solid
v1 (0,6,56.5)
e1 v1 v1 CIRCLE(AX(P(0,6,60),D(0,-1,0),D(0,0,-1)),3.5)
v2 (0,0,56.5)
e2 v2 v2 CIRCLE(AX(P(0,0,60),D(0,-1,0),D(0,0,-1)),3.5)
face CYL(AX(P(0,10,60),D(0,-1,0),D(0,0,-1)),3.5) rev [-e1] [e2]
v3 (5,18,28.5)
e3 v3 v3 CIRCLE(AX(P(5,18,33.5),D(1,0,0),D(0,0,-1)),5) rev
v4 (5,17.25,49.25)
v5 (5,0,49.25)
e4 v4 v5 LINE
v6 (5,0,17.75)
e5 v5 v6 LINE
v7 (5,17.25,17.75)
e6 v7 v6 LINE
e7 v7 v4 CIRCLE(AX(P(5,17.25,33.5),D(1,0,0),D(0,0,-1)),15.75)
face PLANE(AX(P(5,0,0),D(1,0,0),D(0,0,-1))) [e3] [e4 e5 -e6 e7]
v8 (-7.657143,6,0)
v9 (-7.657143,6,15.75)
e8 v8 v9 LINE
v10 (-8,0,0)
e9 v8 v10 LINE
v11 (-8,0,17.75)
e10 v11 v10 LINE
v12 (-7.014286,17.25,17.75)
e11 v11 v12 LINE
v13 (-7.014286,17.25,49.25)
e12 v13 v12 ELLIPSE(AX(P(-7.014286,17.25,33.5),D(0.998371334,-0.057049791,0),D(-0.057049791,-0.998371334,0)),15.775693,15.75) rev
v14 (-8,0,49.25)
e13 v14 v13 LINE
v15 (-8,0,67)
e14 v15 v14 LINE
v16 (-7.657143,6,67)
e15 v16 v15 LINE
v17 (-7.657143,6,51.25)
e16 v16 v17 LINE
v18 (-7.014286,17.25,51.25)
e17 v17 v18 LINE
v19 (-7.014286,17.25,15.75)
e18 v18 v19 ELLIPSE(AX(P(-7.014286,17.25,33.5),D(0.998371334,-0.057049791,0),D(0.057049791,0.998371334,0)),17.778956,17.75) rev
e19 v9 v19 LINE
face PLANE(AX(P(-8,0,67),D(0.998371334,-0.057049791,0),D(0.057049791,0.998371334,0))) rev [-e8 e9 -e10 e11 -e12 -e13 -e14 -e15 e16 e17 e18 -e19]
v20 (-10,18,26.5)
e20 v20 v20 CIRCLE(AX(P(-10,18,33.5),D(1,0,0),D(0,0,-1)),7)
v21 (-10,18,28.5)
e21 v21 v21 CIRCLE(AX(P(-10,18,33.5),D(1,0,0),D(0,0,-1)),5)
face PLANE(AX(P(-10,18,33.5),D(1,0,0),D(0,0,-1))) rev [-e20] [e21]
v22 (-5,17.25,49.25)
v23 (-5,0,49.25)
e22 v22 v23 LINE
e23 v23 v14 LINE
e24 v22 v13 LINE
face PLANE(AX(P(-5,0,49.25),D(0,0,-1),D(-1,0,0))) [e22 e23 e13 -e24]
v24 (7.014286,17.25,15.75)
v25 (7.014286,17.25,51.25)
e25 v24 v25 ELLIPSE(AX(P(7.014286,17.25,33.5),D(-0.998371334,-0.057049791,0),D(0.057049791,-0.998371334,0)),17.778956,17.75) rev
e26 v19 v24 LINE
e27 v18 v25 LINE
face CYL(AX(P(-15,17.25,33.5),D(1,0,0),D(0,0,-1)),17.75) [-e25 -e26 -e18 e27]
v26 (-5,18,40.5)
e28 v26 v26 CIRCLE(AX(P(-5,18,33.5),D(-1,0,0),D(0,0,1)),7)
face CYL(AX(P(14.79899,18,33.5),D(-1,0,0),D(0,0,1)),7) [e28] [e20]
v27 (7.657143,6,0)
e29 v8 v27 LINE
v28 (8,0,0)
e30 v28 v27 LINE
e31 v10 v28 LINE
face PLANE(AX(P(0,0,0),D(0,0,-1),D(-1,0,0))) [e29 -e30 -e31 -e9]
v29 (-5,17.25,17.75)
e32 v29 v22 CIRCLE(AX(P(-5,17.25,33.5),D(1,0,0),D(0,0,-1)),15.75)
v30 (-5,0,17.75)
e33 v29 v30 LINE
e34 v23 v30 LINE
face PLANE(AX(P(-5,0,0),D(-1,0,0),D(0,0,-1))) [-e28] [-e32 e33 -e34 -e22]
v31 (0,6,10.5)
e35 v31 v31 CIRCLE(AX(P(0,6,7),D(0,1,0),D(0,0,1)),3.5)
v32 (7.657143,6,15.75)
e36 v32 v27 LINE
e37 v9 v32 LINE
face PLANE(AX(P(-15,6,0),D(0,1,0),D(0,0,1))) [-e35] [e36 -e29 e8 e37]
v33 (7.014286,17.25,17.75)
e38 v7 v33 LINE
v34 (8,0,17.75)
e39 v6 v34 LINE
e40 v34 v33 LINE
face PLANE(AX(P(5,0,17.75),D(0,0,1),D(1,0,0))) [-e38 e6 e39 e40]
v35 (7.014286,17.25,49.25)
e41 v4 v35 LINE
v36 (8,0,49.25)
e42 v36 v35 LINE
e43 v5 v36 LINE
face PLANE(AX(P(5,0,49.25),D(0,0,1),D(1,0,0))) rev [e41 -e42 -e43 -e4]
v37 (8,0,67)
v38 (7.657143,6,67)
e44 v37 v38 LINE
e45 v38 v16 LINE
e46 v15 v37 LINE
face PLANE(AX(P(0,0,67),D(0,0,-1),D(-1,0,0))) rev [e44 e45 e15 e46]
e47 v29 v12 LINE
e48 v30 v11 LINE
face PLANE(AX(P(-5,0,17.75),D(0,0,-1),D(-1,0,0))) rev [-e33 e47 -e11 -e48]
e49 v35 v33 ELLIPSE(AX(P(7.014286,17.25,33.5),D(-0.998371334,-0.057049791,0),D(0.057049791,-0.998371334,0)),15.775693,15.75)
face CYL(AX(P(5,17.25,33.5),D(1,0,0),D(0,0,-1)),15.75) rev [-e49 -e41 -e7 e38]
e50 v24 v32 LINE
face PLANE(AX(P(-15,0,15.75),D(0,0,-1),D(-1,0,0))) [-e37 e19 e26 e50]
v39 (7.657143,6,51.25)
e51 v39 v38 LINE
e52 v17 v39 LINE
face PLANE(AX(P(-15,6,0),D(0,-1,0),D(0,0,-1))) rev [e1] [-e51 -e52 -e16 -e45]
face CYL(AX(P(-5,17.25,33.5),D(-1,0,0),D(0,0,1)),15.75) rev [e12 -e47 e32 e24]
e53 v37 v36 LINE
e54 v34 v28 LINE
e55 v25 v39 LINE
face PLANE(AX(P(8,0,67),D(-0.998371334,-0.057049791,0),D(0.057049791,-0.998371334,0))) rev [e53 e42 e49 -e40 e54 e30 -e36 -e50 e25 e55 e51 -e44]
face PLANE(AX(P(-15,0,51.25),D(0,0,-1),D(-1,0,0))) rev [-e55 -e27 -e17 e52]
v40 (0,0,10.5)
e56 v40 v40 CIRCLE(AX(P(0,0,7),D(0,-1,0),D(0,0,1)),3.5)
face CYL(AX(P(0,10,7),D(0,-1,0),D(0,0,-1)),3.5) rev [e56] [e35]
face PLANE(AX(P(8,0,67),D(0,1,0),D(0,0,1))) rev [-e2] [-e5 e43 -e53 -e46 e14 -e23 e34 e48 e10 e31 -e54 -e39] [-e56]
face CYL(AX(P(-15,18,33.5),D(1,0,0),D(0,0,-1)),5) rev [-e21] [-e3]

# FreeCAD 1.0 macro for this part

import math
import FreeCAD as App
import Part
import Sketcher

V = App.Vector


def add_polygon(sketch, points):
    """Adds a closed chain of lines whose ends are joined by coincident constraints."""
    first, n = sketch.GeometryCount, len(points)
    for a, b in zip(points, points[1:] + points[:1]):
        sketch.addGeometry(Part.LineSegment(App.Vector(*a, 0), App.Vector(*b, 0)), False)
    for i in range(n):
        sketch.addConstraint(Sketcher.Constraint("Coincident", first + i, 2, first + (i + 1) % n, 1))

doc = App.newDocument("Part")
body = doc.addObject("PartDesign::Body", "Body")

sketch1 = doc.addObject("Sketcher::SketchObject", "Sketch")
body.addObject(sketch1)
sketch1.AttachmentSupport = (doc.XY_Plane, [""])
sketch1.MapMode = "FlatFace"
add_polygon(sketch1, [(-8, 0), (8, 0), (6, 35), (-6, 35)])
sketch1.addConstraint(Sketcher.Constraint("Horizontal", 0))
sketch1.addConstraint(Sketcher.Constraint("Horizontal", 2))
sketch1.addConstraint(Sketcher.Constraint("Symmetric", 0, 2, 3, 2, -1, 1))
sketch1.addConstraint(Sketcher.Constraint("Equal", 1, 3))
sketch1.addConstraint(Sketcher.Constraint("DistanceX", 0, 1, 0, 2, 16.0))
sketch1.addConstraint(Sketcher.Constraint("DistanceX", 2, 2, 2, 1, 12.0))
sketch1.addConstraint(Sketcher.Constraint("DistanceY", -1, 1, 1, 2, 35.0))
pad1 = doc.addObject("PartDesign::Pad", "Pad")
body.addObject(pad1)
pad1.Profile = sketch1
pad1.Length = 67

sketch2 = doc.addObject("Sketcher::SketchObject", "Sketch001")
body.addObject(sketch2)
sketch2.AttachmentSupport = (doc.YZ_Plane, [""])
sketch2.MapMode = "FlatFace"
sketch2.addGeometry(Part.LineSegment(V(35, 67, 0), V(6, 67, 0)), False)
sketch2.addGeometry(Part.LineSegment(V(6, 67, 0), V(6, 51, 0)), False)
sketch2.addGeometry(Part.LineSegment(V(6, 51, 0), V(17, 51, 0)), False)
sketch2.addGeometry(Part.ArcOfCircle(Part.Circle(V(17, 34, 0), V(0, 0, 1), 18), math.radians(0), math.radians(90)), False)
sketch2.addGeometry(Part.LineSegment(V(35, 34, 0), V(35, 67, 0)), False)
sketch2.addGeometry(Part.LineSegment(V(35, 0, 0), V(35, 34, 0)), False)
sketch2.addGeometry(Part.ArcOfCircle(Part.Circle(V(17, 34, 0), V(0, 0, 1), 18), math.radians(-90), math.radians(0)), False)
sketch2.addGeometry(Part.LineSegment(V(17, 16, 0), V(6, 16, 0)), False)
sketch2.addGeometry(Part.LineSegment(V(6, 16, 0), V(6, 0, 0)), False)
sketch2.addGeometry(Part.LineSegment(V(6, 0, 0), V(35, 0, 0)), False)
sketch2.addGeometry(Part.Circle(V(18, 34, 0), V(0, 0, 1), 5), False)
sketch2.addConstraint(Sketcher.Constraint("Coincident", 0, 2, 1, 1))
sketch2.addConstraint(Sketcher.Constraint("Coincident", 1, 2, 2, 1))
sketch2.addConstraint(Sketcher.Constraint("Tangent", 2, 2, 3, 2))
sketch2.addConstraint(Sketcher.Constraint("Tangent", 3, 1, 4, 1))
sketch2.addConstraint(Sketcher.Constraint("Coincident", 4, 2, 0, 1))
sketch2.addConstraint(Sketcher.Constraint("Tangent", 5, 2, 6, 2))
sketch2.addConstraint(Sketcher.Constraint("Tangent", 6, 1, 7, 1))
sketch2.addConstraint(Sketcher.Constraint("Coincident", 7, 2, 8, 1))
sketch2.addConstraint(Sketcher.Constraint("Coincident", 8, 2, 9, 1))
sketch2.addConstraint(Sketcher.Constraint("Coincident", 9, 2, 5, 1))
sketch2.addConstraint(Sketcher.Constraint("Horizontal", 0))
sketch2.addConstraint(Sketcher.Constraint("Vertical", 1))
sketch2.addConstraint(Sketcher.Constraint("Horizontal", 2))
sketch2.addConstraint(Sketcher.Constraint("Vertical", 4))
sketch2.addConstraint(Sketcher.Constraint("Vertical", 5))
sketch2.addConstraint(Sketcher.Constraint("Horizontal", 7))
sketch2.addConstraint(Sketcher.Constraint("Vertical", 8))
sketch2.addConstraint(Sketcher.Constraint("Horizontal", 9))
sketch2.addConstraint(Sketcher.Constraint("Coincident", 6, 3, 3, 3))
sketch2.addConstraint(Sketcher.Constraint("Equal", 3, 6))
sketch2.addConstraint(Sketcher.Constraint("PointOnObject", 8, 2, -1))
sketch2.addConstraint(Sketcher.Constraint("Horizontal", 6, 3, 10, 3))
sketch2.addConstraint(Sketcher.Constraint("Vertical", 1, 2, 7, 2))
sketch2.addConstraint(Sketcher.Constraint("Equal", 4, 5))
sketch2.addConstraint(Sketcher.Constraint("Diameter", 10, 10.0))
sketch2.addConstraint(Sketcher.Constraint("DistanceX", 0, 2, 0, 1, 29.0))
sketch2.addConstraint(Sketcher.Constraint("Radius", 3, 17.75))
sketch2.addConstraint(Sketcher.Constraint("DistanceY", 4, 1, 4, 2, 33.5))
sketch2.addConstraint(Sketcher.Constraint("DistanceX", -1, 1, 10, 3, 18.0))
sketch2.addConstraint(Sketcher.Constraint("DistanceX", -1, 1, 0, 2, 6.0))
pocket1 = doc.addObject("PartDesign::Pocket", "Pocket")
body.addObject(pocket1)
pocket1.Profile = sketch2
pocket1.Length = 30
pocket1.Midplane = True

sketch3 = doc.addObject("Sketcher::SketchObject", "Sketch002")
body.addObject(sketch3)
sketch3.AttachmentSupport = (doc.YZ_Plane, [""])
sketch3.MapMode = "FlatFace"
sketch3.AttachmentOffset = App.Placement(V(0, 0, 8), App.Rotation())
sketch3.addGeometry(Part.LineSegment(V(0, 49, 0), V(0, 18, 0)), False)
sketch3.addGeometry(Part.LineSegment(V(0, 18, 0), V(17, 18, 0)), False)
sketch3.addGeometry(Part.ArcOfCircle(Part.Circle(V(17, 34, 0), V(0, 0, 1), 16), math.radians(-90), math.radians(90)), False)
sketch3.addGeometry(Part.LineSegment(V(17, 49, 0), V(0, 49, 0)), False)
sketch3.addConstraint(Sketcher.Constraint("Coincident", 0, 2, 1, 1))
sketch3.addConstraint(Sketcher.Constraint("Tangent", 1, 2, 2, 1))
sketch3.addConstraint(Sketcher.Constraint("Tangent", 2, 2, 3, 1))
sketch3.addConstraint(Sketcher.Constraint("Coincident", 3, 2, 0, 1))
sketch3.addConstraint(Sketcher.Constraint("Vertical", 0))
sketch3.addConstraint(Sketcher.Constraint("Horizontal", 1))
sketch3.addConstraint(Sketcher.Constraint("Horizontal", 3))
sketch3.addConstraint(Sketcher.Constraint("PointOnObject", 0, 2, -2))
sketch3.addConstraint(Sketcher.Constraint("Radius", 2, 15.75))
sketch3.addConstraint(Sketcher.Constraint("DistanceX", 1, 1, 1, 2, 17.25))
sketch3.addConstraint(Sketcher.Constraint("DistanceY", -1, 1, 2, 3, 33.5))
pocket2 = doc.addObject("PartDesign::Pocket", "Pocket001")
body.addObject(pocket2)
pocket2.Profile = sketch3
pocket2.Length = 3
doc.recompute()

mirrored = doc.addObject("PartDesign::Mirrored", "Mirrored")
body.addObject(mirrored)
mirrored.Originals = [pocket2]
mirrored.MirrorPlane = (doc.YZ_Plane, [""])
body.Tip = mirrored

sketch4 = doc.addObject("Sketcher::SketchObject", "Sketch003")
body.addObject(sketch4)
sketch4.AttachmentSupport = (doc.YZ_Plane, [""])
sketch4.MapMode = "FlatFace"
sketch4.AttachmentOffset = App.Placement(V(0, 0, -10), App.Rotation())
sketch4.addGeometry(Part.Circle(V(18, 34, 0), V(0, 0, 1), 7), False)
sketch4.addGeometry(Part.Circle(V(18, 34, 0), V(0, 0, 1), 5), False)
sketch4.addConstraint(Sketcher.Constraint("Coincident", 1, 3, 0, 3))
sketch4.addConstraint(Sketcher.Constraint("Diameter", 0, 14.0))
sketch4.addConstraint(Sketcher.Constraint("Diameter", 1, 10.0))
sketch4.addConstraint(Sketcher.Constraint("DistanceX", -1, 1, 0, 3, 18.0))
sketch4.addConstraint(Sketcher.Constraint("DistanceY", -1, 1, 0, 3, 33.5))
pad2 = doc.addObject("PartDesign::Pad", "Pad001")
body.addObject(pad2)
pad2.Profile = sketch4
pad2.Length = 5

sketch5 = doc.addObject("Sketcher::SketchObject", "Sketch004")
body.addObject(sketch5)
sketch5.AttachmentSupport = (doc.XZ_Plane, [""])
sketch5.MapMode = "FlatFace"
sketch5.addGeometry(Part.Circle(V(0, 60, 0), V(0, 0, 1), 3.5), False)
sketch5.addGeometry(Part.Circle(V(0, 7, 0), V(0, 0, 1), 3.5), False)
sketch5.addConstraint(Sketcher.Constraint("Equal", 0, 1))
sketch5.addConstraint(Sketcher.Constraint("PointOnObject", 0, 3, -2))
sketch5.addConstraint(Sketcher.Constraint("PointOnObject", 1, 3, -2))
sketch5.addConstraint(Sketcher.Constraint("Diameter", 0, 7.0))
sketch5.addConstraint(Sketcher.Constraint("DistanceY", -1, 1, 0, 3, 60.0))
sketch5.addConstraint(Sketcher.Constraint("DistanceY", -1, 1, 1, 3, 7.0))
pocket3 = doc.addObject("PartDesign::Pocket", "Pocket002")
body.addObject(pocket3)
pocket3.Profile = sketch5
pocket3.Length = 10

doc.recompute()
